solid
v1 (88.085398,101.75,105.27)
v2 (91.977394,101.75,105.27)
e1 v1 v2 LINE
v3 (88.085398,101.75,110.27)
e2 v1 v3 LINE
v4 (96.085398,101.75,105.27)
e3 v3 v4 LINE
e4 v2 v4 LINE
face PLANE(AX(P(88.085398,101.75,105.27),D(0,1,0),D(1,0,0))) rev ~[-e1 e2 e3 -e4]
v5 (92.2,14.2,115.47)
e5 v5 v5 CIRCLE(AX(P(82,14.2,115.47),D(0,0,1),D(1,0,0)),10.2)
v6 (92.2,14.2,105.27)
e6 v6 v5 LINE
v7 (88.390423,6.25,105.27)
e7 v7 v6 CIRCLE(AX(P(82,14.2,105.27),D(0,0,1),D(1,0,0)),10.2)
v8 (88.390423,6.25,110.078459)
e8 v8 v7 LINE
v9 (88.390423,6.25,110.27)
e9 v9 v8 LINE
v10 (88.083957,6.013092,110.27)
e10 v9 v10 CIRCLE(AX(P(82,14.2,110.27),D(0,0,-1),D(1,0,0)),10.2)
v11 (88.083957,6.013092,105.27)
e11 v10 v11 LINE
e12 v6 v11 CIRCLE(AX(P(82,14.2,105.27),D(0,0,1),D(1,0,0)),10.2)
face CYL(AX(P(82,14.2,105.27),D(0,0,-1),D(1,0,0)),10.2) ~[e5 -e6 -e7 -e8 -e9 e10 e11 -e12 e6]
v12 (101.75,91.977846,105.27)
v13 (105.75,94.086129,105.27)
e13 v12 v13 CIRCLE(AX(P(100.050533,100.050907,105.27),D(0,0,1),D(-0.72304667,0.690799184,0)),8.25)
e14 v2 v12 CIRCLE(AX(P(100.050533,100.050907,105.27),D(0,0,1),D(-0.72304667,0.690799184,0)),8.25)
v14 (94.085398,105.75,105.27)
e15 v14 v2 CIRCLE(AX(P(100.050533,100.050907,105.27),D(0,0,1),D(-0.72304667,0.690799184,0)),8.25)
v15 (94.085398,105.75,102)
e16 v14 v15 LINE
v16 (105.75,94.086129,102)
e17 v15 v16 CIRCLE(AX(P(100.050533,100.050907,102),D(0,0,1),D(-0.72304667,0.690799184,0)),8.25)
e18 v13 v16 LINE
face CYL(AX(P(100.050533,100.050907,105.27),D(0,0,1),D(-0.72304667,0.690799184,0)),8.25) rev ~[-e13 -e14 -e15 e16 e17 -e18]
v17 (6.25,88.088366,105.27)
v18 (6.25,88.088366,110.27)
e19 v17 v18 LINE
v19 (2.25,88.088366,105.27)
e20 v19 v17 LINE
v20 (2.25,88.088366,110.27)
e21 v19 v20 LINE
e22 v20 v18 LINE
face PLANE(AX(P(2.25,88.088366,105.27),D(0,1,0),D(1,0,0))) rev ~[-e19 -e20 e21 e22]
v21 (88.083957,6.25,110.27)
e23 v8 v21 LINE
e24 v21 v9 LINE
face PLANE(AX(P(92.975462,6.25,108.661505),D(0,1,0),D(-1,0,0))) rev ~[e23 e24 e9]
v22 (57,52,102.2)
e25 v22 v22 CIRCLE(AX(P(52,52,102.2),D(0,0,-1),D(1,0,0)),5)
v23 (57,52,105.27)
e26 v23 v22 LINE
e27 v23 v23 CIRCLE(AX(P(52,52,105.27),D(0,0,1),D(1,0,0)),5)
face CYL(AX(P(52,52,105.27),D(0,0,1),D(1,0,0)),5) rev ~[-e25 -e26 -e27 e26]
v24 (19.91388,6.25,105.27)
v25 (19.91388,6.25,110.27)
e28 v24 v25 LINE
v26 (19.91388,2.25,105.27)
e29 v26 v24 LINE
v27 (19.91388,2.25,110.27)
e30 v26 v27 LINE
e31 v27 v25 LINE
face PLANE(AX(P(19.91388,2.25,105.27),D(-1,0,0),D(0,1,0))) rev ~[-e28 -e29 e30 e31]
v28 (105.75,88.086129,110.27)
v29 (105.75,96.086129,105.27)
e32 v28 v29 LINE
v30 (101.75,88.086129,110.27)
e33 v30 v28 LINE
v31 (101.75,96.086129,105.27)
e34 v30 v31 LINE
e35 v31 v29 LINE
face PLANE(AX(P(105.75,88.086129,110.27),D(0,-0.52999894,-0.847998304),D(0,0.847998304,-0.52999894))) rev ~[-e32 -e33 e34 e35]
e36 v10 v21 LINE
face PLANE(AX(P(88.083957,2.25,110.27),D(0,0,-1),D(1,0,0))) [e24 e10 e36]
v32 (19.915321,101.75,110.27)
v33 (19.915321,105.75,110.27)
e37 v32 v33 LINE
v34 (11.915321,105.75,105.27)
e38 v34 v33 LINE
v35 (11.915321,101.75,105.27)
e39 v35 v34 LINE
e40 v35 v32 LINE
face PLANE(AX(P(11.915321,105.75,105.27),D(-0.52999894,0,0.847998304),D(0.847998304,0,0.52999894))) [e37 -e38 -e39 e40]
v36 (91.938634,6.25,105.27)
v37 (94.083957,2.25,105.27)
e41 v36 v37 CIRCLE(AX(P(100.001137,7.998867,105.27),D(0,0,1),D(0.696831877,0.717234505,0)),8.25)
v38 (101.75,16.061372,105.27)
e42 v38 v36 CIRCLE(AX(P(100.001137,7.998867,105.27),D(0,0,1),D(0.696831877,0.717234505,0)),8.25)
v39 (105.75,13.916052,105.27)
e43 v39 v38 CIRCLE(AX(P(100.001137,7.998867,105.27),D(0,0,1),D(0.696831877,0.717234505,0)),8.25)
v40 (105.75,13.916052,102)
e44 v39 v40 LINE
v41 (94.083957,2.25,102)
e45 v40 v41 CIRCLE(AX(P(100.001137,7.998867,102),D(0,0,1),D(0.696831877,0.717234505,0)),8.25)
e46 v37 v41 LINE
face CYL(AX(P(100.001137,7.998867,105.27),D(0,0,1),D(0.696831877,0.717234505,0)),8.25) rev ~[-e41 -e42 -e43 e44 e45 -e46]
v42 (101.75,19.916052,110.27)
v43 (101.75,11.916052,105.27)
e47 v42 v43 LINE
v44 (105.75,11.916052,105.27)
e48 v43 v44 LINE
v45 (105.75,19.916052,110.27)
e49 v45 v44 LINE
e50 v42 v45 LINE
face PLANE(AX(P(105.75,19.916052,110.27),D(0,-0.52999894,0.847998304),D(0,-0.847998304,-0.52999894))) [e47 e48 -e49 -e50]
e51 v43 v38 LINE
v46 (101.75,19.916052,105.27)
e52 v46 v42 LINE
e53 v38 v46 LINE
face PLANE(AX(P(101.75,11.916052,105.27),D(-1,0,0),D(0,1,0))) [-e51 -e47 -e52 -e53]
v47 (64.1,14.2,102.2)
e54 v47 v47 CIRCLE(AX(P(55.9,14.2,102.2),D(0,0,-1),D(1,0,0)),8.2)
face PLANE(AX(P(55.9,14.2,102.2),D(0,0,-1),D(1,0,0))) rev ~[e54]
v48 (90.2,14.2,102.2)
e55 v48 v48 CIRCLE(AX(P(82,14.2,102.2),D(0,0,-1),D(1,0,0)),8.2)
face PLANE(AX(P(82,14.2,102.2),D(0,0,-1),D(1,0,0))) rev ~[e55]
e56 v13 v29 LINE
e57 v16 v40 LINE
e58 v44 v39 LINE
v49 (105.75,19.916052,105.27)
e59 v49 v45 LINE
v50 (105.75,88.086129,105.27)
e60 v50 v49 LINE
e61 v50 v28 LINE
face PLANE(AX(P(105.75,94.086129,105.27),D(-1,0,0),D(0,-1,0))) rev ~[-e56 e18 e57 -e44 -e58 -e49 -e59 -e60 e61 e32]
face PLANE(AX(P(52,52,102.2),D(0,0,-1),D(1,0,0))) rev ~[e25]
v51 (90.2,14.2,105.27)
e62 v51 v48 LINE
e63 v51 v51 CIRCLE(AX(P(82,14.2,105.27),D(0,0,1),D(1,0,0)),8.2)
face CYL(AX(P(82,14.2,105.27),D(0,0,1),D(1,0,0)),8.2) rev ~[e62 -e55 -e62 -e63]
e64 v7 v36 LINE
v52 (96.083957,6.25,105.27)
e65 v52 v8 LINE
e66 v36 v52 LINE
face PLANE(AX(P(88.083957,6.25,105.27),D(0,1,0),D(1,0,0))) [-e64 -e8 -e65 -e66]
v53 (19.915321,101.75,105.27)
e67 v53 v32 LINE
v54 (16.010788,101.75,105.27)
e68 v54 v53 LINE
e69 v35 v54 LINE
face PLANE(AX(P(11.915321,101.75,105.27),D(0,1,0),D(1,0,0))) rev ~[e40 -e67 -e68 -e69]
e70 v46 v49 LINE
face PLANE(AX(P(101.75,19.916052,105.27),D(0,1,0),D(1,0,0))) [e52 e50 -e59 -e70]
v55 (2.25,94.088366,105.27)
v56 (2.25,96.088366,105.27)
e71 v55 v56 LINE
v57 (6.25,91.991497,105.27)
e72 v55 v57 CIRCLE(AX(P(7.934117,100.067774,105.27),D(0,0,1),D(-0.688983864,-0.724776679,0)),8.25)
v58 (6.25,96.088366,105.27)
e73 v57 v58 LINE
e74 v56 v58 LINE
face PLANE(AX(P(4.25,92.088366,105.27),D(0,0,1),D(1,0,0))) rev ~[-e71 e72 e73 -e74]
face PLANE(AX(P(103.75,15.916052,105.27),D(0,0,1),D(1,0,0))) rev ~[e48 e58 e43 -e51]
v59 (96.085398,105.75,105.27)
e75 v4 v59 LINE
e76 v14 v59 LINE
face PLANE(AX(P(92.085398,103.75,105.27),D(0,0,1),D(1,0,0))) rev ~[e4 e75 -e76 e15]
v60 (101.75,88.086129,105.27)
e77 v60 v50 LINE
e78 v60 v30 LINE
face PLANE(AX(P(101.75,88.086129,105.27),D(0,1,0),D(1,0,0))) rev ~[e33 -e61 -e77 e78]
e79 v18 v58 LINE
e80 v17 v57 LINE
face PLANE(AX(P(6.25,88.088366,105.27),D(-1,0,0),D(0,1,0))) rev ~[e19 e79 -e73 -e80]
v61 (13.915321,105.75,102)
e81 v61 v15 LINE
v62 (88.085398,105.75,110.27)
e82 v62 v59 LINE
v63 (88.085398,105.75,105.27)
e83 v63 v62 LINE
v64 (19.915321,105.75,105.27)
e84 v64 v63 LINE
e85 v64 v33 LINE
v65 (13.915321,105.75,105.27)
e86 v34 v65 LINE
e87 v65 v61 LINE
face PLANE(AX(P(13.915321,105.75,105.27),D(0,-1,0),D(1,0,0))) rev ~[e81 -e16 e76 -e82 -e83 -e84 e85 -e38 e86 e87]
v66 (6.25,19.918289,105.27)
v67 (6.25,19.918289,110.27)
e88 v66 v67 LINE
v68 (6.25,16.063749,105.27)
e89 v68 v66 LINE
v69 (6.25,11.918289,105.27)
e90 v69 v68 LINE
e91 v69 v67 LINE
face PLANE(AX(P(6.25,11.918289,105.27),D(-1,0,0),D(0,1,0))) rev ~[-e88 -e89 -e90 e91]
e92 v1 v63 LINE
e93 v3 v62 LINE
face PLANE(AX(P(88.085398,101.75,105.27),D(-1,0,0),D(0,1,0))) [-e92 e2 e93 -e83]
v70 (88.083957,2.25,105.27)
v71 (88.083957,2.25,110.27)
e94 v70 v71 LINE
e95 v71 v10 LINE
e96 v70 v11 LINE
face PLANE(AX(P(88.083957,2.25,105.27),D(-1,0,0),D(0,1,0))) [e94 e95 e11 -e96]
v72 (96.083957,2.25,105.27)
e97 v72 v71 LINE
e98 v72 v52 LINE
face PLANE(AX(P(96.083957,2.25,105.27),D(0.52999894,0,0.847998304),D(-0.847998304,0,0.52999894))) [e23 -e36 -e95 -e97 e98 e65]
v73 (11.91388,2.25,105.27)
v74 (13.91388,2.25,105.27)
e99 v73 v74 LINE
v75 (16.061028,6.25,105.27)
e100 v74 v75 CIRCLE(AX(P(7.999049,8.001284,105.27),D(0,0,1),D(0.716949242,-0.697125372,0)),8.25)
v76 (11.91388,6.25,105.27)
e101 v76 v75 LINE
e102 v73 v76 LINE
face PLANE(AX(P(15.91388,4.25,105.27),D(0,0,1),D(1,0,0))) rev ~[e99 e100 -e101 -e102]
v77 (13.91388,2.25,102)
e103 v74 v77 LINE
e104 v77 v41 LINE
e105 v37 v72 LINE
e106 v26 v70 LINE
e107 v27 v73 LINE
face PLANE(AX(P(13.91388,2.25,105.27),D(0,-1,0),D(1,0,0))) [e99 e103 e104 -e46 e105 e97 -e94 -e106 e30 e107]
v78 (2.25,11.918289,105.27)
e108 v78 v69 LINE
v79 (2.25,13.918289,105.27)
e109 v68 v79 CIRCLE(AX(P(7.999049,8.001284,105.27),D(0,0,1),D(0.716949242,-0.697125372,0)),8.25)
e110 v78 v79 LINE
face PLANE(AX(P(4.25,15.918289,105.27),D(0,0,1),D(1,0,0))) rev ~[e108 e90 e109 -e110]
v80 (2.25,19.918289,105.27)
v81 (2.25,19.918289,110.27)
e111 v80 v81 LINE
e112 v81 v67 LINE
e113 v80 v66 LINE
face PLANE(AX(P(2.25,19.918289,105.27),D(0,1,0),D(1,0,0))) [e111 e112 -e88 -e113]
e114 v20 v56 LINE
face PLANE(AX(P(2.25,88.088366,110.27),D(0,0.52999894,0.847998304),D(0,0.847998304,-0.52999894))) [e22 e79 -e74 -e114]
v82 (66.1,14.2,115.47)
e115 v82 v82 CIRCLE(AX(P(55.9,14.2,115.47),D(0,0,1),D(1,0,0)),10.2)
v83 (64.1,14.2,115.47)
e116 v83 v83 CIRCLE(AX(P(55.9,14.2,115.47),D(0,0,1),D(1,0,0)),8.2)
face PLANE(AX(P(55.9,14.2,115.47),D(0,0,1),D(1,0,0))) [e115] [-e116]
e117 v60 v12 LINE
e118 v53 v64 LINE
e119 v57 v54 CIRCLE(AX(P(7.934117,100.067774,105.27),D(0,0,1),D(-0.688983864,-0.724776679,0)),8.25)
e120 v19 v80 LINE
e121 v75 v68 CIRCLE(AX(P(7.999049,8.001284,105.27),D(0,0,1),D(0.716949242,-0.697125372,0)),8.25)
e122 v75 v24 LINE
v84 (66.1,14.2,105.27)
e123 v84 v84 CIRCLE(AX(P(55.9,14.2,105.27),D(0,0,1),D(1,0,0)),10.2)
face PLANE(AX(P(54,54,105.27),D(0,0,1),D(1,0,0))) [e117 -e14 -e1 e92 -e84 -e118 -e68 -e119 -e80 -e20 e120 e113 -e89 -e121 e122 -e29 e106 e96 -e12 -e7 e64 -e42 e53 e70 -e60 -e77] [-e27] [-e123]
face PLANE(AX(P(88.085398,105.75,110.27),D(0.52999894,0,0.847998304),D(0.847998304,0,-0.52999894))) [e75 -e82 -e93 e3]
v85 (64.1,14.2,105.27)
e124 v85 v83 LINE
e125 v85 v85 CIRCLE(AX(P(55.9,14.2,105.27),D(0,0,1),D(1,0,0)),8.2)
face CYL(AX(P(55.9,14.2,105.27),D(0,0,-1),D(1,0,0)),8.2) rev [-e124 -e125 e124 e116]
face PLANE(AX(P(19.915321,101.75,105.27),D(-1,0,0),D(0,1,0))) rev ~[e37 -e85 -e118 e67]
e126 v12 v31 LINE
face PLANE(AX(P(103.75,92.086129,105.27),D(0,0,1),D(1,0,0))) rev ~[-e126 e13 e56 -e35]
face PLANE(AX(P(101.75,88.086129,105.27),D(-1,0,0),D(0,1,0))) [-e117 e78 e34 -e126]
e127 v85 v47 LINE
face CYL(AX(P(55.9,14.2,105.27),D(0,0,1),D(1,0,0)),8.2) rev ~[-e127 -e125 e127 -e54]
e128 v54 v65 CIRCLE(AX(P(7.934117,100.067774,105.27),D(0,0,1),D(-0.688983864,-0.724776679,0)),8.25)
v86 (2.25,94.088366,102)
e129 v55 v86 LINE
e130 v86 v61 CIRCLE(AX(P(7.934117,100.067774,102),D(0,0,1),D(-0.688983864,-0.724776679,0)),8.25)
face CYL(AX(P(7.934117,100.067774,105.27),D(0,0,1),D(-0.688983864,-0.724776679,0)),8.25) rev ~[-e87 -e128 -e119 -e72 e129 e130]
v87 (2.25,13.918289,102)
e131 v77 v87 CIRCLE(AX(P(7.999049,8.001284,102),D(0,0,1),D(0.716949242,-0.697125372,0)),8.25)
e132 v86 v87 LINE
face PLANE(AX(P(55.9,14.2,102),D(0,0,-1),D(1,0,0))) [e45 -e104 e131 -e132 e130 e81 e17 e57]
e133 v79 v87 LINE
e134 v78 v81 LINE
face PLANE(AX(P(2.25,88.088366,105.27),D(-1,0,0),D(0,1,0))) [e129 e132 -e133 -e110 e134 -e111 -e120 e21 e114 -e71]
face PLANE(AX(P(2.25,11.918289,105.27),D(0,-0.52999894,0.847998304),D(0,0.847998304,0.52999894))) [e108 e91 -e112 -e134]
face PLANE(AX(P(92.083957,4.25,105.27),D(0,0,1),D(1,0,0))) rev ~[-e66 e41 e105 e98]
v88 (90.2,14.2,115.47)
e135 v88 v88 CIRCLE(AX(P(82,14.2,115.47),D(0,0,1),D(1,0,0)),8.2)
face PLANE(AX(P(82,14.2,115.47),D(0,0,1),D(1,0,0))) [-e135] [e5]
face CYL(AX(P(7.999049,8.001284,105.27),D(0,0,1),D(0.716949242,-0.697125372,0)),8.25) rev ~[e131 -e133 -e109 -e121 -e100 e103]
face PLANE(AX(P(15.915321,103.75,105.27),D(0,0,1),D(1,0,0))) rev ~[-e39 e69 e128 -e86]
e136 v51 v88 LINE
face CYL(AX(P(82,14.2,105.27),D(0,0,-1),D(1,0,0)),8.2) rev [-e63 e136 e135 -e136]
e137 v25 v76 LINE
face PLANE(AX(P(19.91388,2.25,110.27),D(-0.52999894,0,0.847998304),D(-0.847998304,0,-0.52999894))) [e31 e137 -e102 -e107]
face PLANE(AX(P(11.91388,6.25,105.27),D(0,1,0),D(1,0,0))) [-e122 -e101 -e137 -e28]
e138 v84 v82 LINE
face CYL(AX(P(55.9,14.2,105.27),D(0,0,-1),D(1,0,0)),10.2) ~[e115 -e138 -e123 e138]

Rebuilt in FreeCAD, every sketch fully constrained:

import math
import FreeCAD as App
import Part
import Sketcher
from FreeCAD import Vector
Q = App.Units.Quantity


def edges_at(feature, points):
    """Names of the edges that pass closest to the given points."""
    edges = feature.Shape.Edges
    near = lambda p: min(range(len(edges)), key=lambda i: edges[i].distToShape(Part.Vertex(*p))[0])
    return sorted({f"Edge{near(p) + 1}" for p in points})

doc = App.newDocument("Part")
body = doc.addObject("PartDesign::Body", "Body")

# Sketch on XY plane
sketch1 = body.newObject("Sketcher::SketchObject", "Sketch")
sketch1.AttachmentSupport = (doc.getObject("XY_Plane"), [""])
sketch1.MapMode = "FlatFace"
sketch1.addGeometry(Part.LineSegment(Vector(0, 108, 0), Vector(0, 0, 0)), False)
sketch1.addGeometry(Part.LineSegment(Vector(0, 0, 0), Vector(108, 0, 0)), False)
sketch1.addGeometry(Part.LineSegment(Vector(108, 0, 0), Vector(108, 108, 0)), False)
sketch1.addGeometry(Part.LineSegment(Vector(108, 108, 0), Vector(0, 108, 0)), False)
sketch1.addConstraint(Sketcher.Constraint("Coincident", 0, 2, 1, 1))
sketch1.addConstraint(Sketcher.Constraint("Coincident", 1, 2, 2, 1))
sketch1.addConstraint(Sketcher.Constraint("Coincident", 2, 2, 3, 1))
sketch1.addConstraint(Sketcher.Constraint("Coincident", 3, 2, 0, 1))
sketch1.addConstraint(Sketcher.Constraint("Vertical", 0))
sketch1.addConstraint(Sketcher.Constraint("Horizontal", 1))
sketch1.addConstraint(Sketcher.Constraint("Vertical", 2))
sketch1.addConstraint(Sketcher.Constraint("Horizontal", 3))
sketch1.addConstraint(Sketcher.Constraint("Coincident", 0, 2, -1, 1))
sketch1.addConstraint(Sketcher.Constraint("Equal", 3, 0))
sketch1.addConstraint(Sketcher.Constraint("DistanceX", 1, 1, 1, 2, Q("108 mm")))
pad1 = body.newObject("PartDesign::Pad", "Pad")
pad1.Profile = sketch1
pad1.Length = 3.27
doc.recompute()

fillet = body.newObject("PartDesign::Fillet", "Fillet")
fillet.Base = (pad1, edges_at(pad1, [
    (0, 0, 1.635),
    (0, 108, 1.635),
    (108, 108, 1.635),
    (108, 0, 1.635),
]))
fillet.Radius = 8

# Sketch on XY plane
sketch2 = body.newObject("Sketcher::SketchObject", "Sketch001")
sketch2.AttachmentSupport = (doc.getObject("XY_Plane"), [""])
sketch2.MapMode = "FlatFace"
sketch2.AttachmentOffset = App.Placement(Vector(0, 0, 3.27), App.Rotation())
sketch2.addGeometry(Part.Circle(Vector(56, 14, 0), Vector(0, 0, 1), 8), False)
sketch2.addGeometry(Part.Circle(Vector(82, 14, 0), Vector(0, 0, 1), 8), False)
sketch2.addConstraint(Sketcher.Constraint("Equal", 0, 1))
sketch2.addConstraint(Sketcher.Constraint("Horizontal", 0, 3, 1, 3))
sketch2.addConstraint(Sketcher.Constraint("Diameter", 0, Q("16.4 mm")))
sketch2.addConstraint(Sketcher.Constraint("DistanceX", -1, 1, 1, 3, Q("82 mm")))
sketch2.addConstraint(Sketcher.Constraint("DistanceX", -1, 1, 0, 3, Q("55.9 mm")))
sketch2.addConstraint(Sketcher.Constraint("DistanceY", -1, 1, 0, 3, Q("14.2 mm")))
pocket1 = body.newObject("PartDesign::Pocket", "Pocket")
pocket1.Profile = sketch2
pocket1.Type = "ThroughAll"

# Sketch on XY plane
sketch3 = body.newObject("Sketcher::SketchObject", "Sketch002")
sketch3.AttachmentSupport = (doc.getObject("XY_Plane"), [""])
sketch3.MapMode = "FlatFace"
sketch3.AttachmentOffset = App.Placement(Vector(0, 0, 3.27), App.Rotation())
sketch3.addGeometry(Part.Circle(Vector(56, 14, 0), Vector(0, 0, 1), 10), False)
sketch3.addGeometry(Part.Circle(Vector(56, 14, 0), Vector(0, 0, 1), 8), False)
sketch3.addGeometry(Part.Circle(Vector(82, 14, 0), Vector(0, 0, 1), 10), False)
sketch3.addGeometry(Part.Circle(Vector(82, 14, 0), Vector(0, 0, 1), 8), False)
sketch3.addConstraint(Sketcher.Constraint("Coincident", 1, 3, 0, 3))
sketch3.addConstraint(Sketcher.Constraint("Coincident", 3, 3, 2, 3))
sketch3.addConstraint(Sketcher.Constraint("Equal", 0, 2))
sketch3.addConstraint(Sketcher.Constraint("Equal", 1, 3))
sketch3.addConstraint(Sketcher.Constraint("Horizontal", 1, 3, 2, 3))
sketch3.addConstraint(Sketcher.Constraint("Diameter", 0, Q("20.4 mm")))
sketch3.addConstraint(Sketcher.Constraint("Diameter", 1, Q("16.4 mm")))
sketch3.addConstraint(Sketcher.Constraint("DistanceX", -1, 1, 2, 3, Q("82 mm")))
sketch3.addConstraint(Sketcher.Constraint("DistanceX", -1, 1, 0, 3, Q("55.9 mm")))
sketch3.addConstraint(Sketcher.Constraint("DistanceY", -1, 1, 0, 3, Q("14.2 mm")))
pad2 = body.newObject("PartDesign::Pad", "Pad001")
pad2.Profile = sketch3
pad2.Length = 10.2

# Sketch on XY plane
sketch4 = body.newObject("Sketcher::SketchObject", "Sketch003")
sketch4.AttachmentSupport = (doc.getObject("XY_Plane"), [""])
sketch4.MapMode = "FlatFace"
sketch4.AttachmentOffset = App.Placement(Vector(0, 0, 3.27), App.Rotation())
sketch4.addGeometry(Part.LineSegment(Vector(0, 108, 0), Vector(0, 0, 0)), False)
sketch4.addGeometry(Part.LineSegment(Vector(0, 0, 0), Vector(108, 0, 0)), False)
sketch4.addGeometry(Part.LineSegment(Vector(108, 0, 0), Vector(108, 108, 0)), False)
sketch4.addGeometry(Part.LineSegment(Vector(108, 108, 0), Vector(0, 108, 0)), False)
sketch4.addGeometry(Part.LineSegment(Vector(2, 14, 0), Vector(2, 94, 0)), False)
sketch4.addGeometry(Part.ArcOfCircle(Part.Circle(Vector(8, 100, 0), Vector(0, 0, 1), 8), math.radians(-134), math.radians(44)), False)
sketch4.addGeometry(Part.LineSegment(Vector(14, 106, 0), Vector(94, 106, 0)), False)
sketch4.addGeometry(Part.ArcOfCircle(Part.Circle(Vector(100, 100, 0), Vector(0, 0, 1), 8), math.radians(136), math.radians(314)), False)
sketch4.addGeometry(Part.LineSegment(Vector(106, 94, 0), Vector(106, 14, 0)), False)
sketch4.addGeometry(Part.ArcOfCircle(Part.Circle(Vector(100, 8, 0), Vector(0, 0, 1), 8), math.radians(46), math.radians(224)), False)
sketch4.addGeometry(Part.LineSegment(Vector(94, 2, 0), Vector(14, 2, 0)), False)
sketch4.addGeometry(Part.ArcOfCircle(Part.Circle(Vector(8, 8, 0), Vector(0, 0, 1), 8), math.radians(-44), math.radians(134)), False)
sketch4.addConstraint(Sketcher.Constraint("Coincident", 0, 2, 1, 1))
sketch4.addConstraint(Sketcher.Constraint("Coincident", 1, 2, 2, 1))
sketch4.addConstraint(Sketcher.Constraint("Coincident", 2, 2, 3, 1))
sketch4.addConstraint(Sketcher.Constraint("Coincident", 3, 2, 0, 1))
sketch4.addConstraint(Sketcher.Constraint("Coincident", 4, 2, 5, 1))
sketch4.addConstraint(Sketcher.Constraint("Coincident", 5, 2, 6, 1))
sketch4.addConstraint(Sketcher.Constraint("Coincident", 6, 2, 7, 1))
sketch4.addConstraint(Sketcher.Constraint("Coincident", 7, 2, 8, 1))
sketch4.addConstraint(Sketcher.Constraint("Coincident", 8, 2, 9, 1))
sketch4.addConstraint(Sketcher.Constraint("Coincident", 9, 2, 10, 1))
sketch4.addConstraint(Sketcher.Constraint("Coincident", 10, 2, 11, 1))
sketch4.addConstraint(Sketcher.Constraint("Coincident", 11, 2, 4, 1))
sketch4.addConstraint(Sketcher.Constraint("Vertical", 0))
sketch4.addConstraint(Sketcher.Constraint("Horizontal", 1))
sketch4.addConstraint(Sketcher.Constraint("Vertical", 2))
sketch4.addConstraint(Sketcher.Constraint("Horizontal", 3))
sketch4.addConstraint(Sketcher.Constraint("Vertical", 4))
sketch4.addConstraint(Sketcher.Constraint("Horizontal", 6))
sketch4.addConstraint(Sketcher.Constraint("Vertical", 8))
sketch4.addConstraint(Sketcher.Constraint("Horizontal", 10))
sketch4.addConstraint(Sketcher.Constraint("Coincident", 0, 2, -1, 1))
sketch4.addConstraint(Sketcher.Constraint("Equal", 5, 7))
sketch4.addConstraint(Sketcher.Constraint("Equal", 7, 9))
sketch4.addConstraint(Sketcher.Constraint("Equal", 9, 11))
sketch4.addConstraint(Sketcher.Constraint("Equal", 6, 10))
sketch4.addConstraint(Sketcher.Constraint("Equal", 3, 0))
sketch4.addConstraint(Sketcher.Constraint("Equal", 10, 4))
sketch4.addConstraint(Sketcher.Constraint("Equal", 4, 8))
sketch4.addConstraint(Sketcher.Constraint("DistanceX", 1, 1, 1, 2, Q("108 mm")))
sketch4.addConstraint(Sketcher.Constraint("Radius", 5, Q("8.25 mm")))
sketch4.addConstraint(Sketcher.Constraint("DistanceX", -1, 1, 4, 2, Q("2.25 mm")))
sketch4.addConstraint(Sketcher.Constraint("DistanceY", -1, 1, 5, 2, Q("105.75 mm")))
sketch4.addConstraint(Sketcher.Constraint("DistanceX", -1, 1, 7, 2, Q("105.75 mm")))
sketch4.addConstraint(Sketcher.Constraint("DistanceY", -1, 1, 9, 2, Q("2.25 mm")))
sketch4.addConstraint(Sketcher.Constraint("DistanceX", 6, 2, 7, 2, Q("11.664602 mm")))
sketch4.addConstraint(Sketcher.Constraint("DistanceX", 6, 1, 6, 2, Q("80.170077 mm")))
sketch4.addConstraint(Sketcher.Constraint("DistanceX", -1, 1, 11, 3, Q("7.999049 mm")))
sketch4.addConstraint(Sketcher.Constraint("DistanceY", -1, 1, 7, 2, Q("94.086129 mm")))
sketch4.addConstraint(Sketcher.Constraint("DistanceX", -1, 1, 10, 2, Q("13.91388 mm")))
pocket2 = body.newObject("PartDesign::Pocket", "Pocket001")
pocket2.Profile = sketch4
pocket2.Type = "ThroughAll"

# Sketch on XY plane
sketch5 = body.newObject("Sketcher::SketchObject", "Sketch004")
sketch5.AttachmentSupport = (doc.getObject("XY_Plane"), [""])
sketch5.MapMode = "FlatFace"
sketch5.AttachmentOffset = App.Placement(Vector(0, 0, 3.27), App.Rotation())
sketch5.addGeometry(Part.Circle(Vector(52, 52, 0), Vector(0, 0, 1), 5), False)
sketch5.addConstraint(Sketcher.Constraint("Diameter", 0, Q("10 mm")))
sketch5.addConstraint(Sketcher.Constraint("DistanceX", -1, 1, 0, 3, Q("52 mm")))
sketch5.addConstraint(Sketcher.Constraint("DistanceY", -1, 1, 0, 3, Q("52 mm")))
pocket3 = body.newObject("PartDesign::Pocket", "Pocket002")
pocket3.Profile = sketch5
pocket3.Type = "ThroughAll"

# Sketch on XY plane
sketch6 = body.newObject("Sketcher::SketchObject", "Sketch005")
sketch6.AttachmentSupport = (doc.getObject("XY_Plane"), [""])
sketch6.MapMode = "FlatFace"
sketch6.AttachmentOffset = App.Placement(Vector(0, 0, 3.27), App.Rotation())
sketch6.addGeometry(Part.LineSegment(Vector(2.2, 96.1, 0), Vector(2.2, 88.1, 0)), False)
sketch6.addGeometry(Part.LineSegment(Vector(2.2, 88.1, 0), Vector(6.2, 88.1, 0)), False)
sketch6.addGeometry(Part.LineSegment(Vector(6.2, 88.1, 0), Vector(6.2, 96.1, 0)), False)
sketch6.addGeometry(Part.LineSegment(Vector(6.2, 96.1, 0), Vector(2.2, 96.1, 0)), False)
sketch6.addGeometry(Part.LineSegment(Vector(11.9, 105.8, 0), Vector(11.9, 101.8, 0)), False)
sketch6.addGeometry(Part.LineSegment(Vector(11.9, 101.8, 0), Vector(19.9, 101.8, 0)), False)
sketch6.addGeometry(Part.LineSegment(Vector(19.9, 101.8, 0), Vector(19.9, 105.8, 0)), False)
sketch6.addGeometry(Part.LineSegment(Vector(19.9, 105.8, 0), Vector(11.9, 105.8, 0)), False)
sketch6.addGeometry(Part.LineSegment(Vector(88.1, 105.8, 0), Vector(88.1, 101.8, 0)), False)
sketch6.addGeometry(Part.LineSegment(Vector(88.1, 101.8, 0), Vector(96.1, 101.8, 0)), False)
sketch6.addGeometry(Part.LineSegment(Vector(96.1, 101.8, 0), Vector(96.1, 105.8, 0)), False)
sketch6.addGeometry(Part.LineSegment(Vector(96.1, 105.8, 0), Vector(88.1, 105.8, 0)), False)
sketch6.addGeometry(Part.LineSegment(Vector(101.8, 96.1, 0), Vector(101.8, 88.1, 0)), False)
sketch6.addGeometry(Part.LineSegment(Vector(101.8, 88.1, 0), Vector(105.8, 88.1, 0)), False)
sketch6.addGeometry(Part.LineSegment(Vector(105.8, 88.1, 0), Vector(105.8, 96.1, 0)), False)
sketch6.addGeometry(Part.LineSegment(Vector(105.8, 96.1, 0), Vector(101.8, 96.1, 0)), False)
sketch6.addGeometry(Part.LineSegment(Vector(101.8, 19.9, 0), Vector(101.8, 11.9, 0)), False)
sketch6.addGeometry(Part.LineSegment(Vector(101.8, 11.9, 0), Vector(105.8, 11.9, 0)), False)
sketch6.addGeometry(Part.LineSegment(Vector(105.8, 11.9, 0), Vector(105.8, 19.9, 0)), False)
sketch6.addGeometry(Part.LineSegment(Vector(105.8, 19.9, 0), Vector(101.8, 19.9, 0)), False)
sketch6.addGeometry(Part.LineSegment(Vector(88.1, 6.2, 0), Vector(88.1, 2.2, 0)), False)
sketch6.addGeometry(Part.LineSegment(Vector(88.1, 2.2, 0), Vector(96.1, 2.2, 0)), False)
sketch6.addGeometry(Part.LineSegment(Vector(96.1, 2.2, 0), Vector(96.1, 6.2, 0)), False)
sketch6.addGeometry(Part.LineSegment(Vector(96.1, 6.2, 0), Vector(88.1, 6.2, 0)), False)
sketch6.addGeometry(Part.LineSegment(Vector(11.9, 6.2, 0), Vector(11.9, 2.2, 0)), False)
sketch6.addGeometry(Part.LineSegment(Vector(11.9, 2.2, 0), Vector(19.9, 2.2, 0)), False)
sketch6.addGeometry(Part.LineSegment(Vector(19.9, 2.2, 0), Vector(19.9, 6.2, 0)), False)
sketch6.addGeometry(Part.LineSegment(Vector(19.9, 6.2, 0), Vector(11.9, 6.2, 0)), False)
sketch6.addGeometry(Part.LineSegment(Vector(2.2, 19.9, 0), Vector(2.2, 11.9, 0)), False)
sketch6.addGeometry(Part.LineSegment(Vector(2.2, 11.9, 0), Vector(6.2, 11.9, 0)), False)
sketch6.addGeometry(Part.LineSegment(Vector(6.2, 11.9, 0), Vector(6.2, 19.9, 0)), False)
sketch6.addGeometry(Part.LineSegment(Vector(6.2, 19.9, 0), Vector(2.2, 19.9, 0)), False)
sketch6.addConstraint(Sketcher.Constraint("Coincident", 0, 2, 1, 1))
sketch6.addConstraint(Sketcher.Constraint("Coincident", 1, 2, 2, 1))
sketch6.addConstraint(Sketcher.Constraint("Coincident", 2, 2, 3, 1))
sketch6.addConstraint(Sketcher.Constraint("Coincident", 3, 2, 0, 1))
sketch6.addConstraint(Sketcher.Constraint("Coincident", 4, 2, 5, 1))
sketch6.addConstraint(Sketcher.Constraint("Coincident", 5, 2, 6, 1))
sketch6.addConstraint(Sketcher.Constraint("Coincident", 6, 2, 7, 1))
sketch6.addConstraint(Sketcher.Constraint("Coincident", 7, 2, 4, 1))
sketch6.addConstraint(Sketcher.Constraint("Coincident", 8, 2, 9, 1))
sketch6.addConstraint(Sketcher.Constraint("Coincident", 9, 2, 10, 1))
sketch6.addConstraint(Sketcher.Constraint("Coincident", 10, 2, 11, 1))
sketch6.addConstraint(Sketcher.Constraint("Coincident", 11, 2, 8, 1))
sketch6.addConstraint(Sketcher.Constraint("Coincident", 12, 2, 13, 1))
sketch6.addConstraint(Sketcher.Constraint("Coincident", 13, 2, 14, 1))
sketch6.addConstraint(Sketcher.Constraint("Coincident", 14, 2, 15, 1))
sketch6.addConstraint(Sketcher.Constraint("Coincident", 15, 2, 12, 1))
sketch6.addConstraint(Sketcher.Constraint("Coincident", 16, 2, 17, 1))
sketch6.addConstraint(Sketcher.Constraint("Coincident", 17, 2, 18, 1))
sketch6.addConstraint(Sketcher.Constraint("Coincident", 18, 2, 19, 1))
sketch6.addConstraint(Sketcher.Constraint("Coincident", 19, 2, 16, 1))
sketch6.addConstraint(Sketcher.Constraint("Coincident", 20, 2, 21, 1))
sketch6.addConstraint(Sketcher.Constraint("Coincident", 21, 2, 22, 1))
sketch6.addConstraint(Sketcher.Constraint("Coincident", 22, 2, 23, 1))
sketch6.addConstraint(Sketcher.Constraint("Coincident", 23, 2, 20, 1))
sketch6.addConstraint(Sketcher.Constraint("Coincident", 24, 2, 25, 1))
sketch6.addConstraint(Sketcher.Constraint("Coincident", 25, 2, 26, 1))
sketch6.addConstraint(Sketcher.Constraint("Coincident", 26, 2, 27, 1))
sketch6.addConstraint(Sketcher.Constraint("Coincident", 27, 2, 24, 1))
sketch6.addConstraint(Sketcher.Constraint("Coincident", 28, 2, 29, 1))
sketch6.addConstraint(Sketcher.Constraint("Coincident", 29, 2, 30, 1))
sketch6.addConstraint(Sketcher.Constraint("Coincident", 30, 2, 31, 1))
sketch6.addConstraint(Sketcher.Constraint("Coincident", 31, 2, 28, 1))
sketch6.addConstraint(Sketcher.Constraint("Vertical", 0))
sketch6.addConstraint(Sketcher.Constraint("Horizontal", 1))
sketch6.addConstraint(Sketcher.Constraint("Vertical", 2))
sketch6.addConstraint(Sketcher.Constraint("Horizontal", 3))
sketch6.addConstraint(Sketcher.Constraint("Vertical", 4))
sketch6.addConstraint(Sketcher.Constraint("Horizontal", 5))
sketch6.addConstraint(Sketcher.Constraint("Vertical", 6))
sketch6.addConstraint(Sketcher.Constraint("Horizontal", 7))
sketch6.addConstraint(Sketcher.Constraint("Vertical", 8))
sketch6.addConstraint(Sketcher.Constraint("Horizontal", 9))
sketch6.addConstraint(Sketcher.Constraint("Vertical", 10))
sketch6.addConstraint(Sketcher.Constraint("Horizontal", 11))
sketch6.addConstraint(Sketcher.Constraint("Vertical", 12))
sketch6.addConstraint(Sketcher.Constraint("Horizontal", 13))
sketch6.addConstraint(Sketcher.Constraint("Vertical", 14))
sketch6.addConstraint(Sketcher.Constraint("Horizontal", 15))
sketch6.addConstraint(Sketcher.Constraint("Vertical", 16))
sketch6.addConstraint(Sketcher.Constraint("Horizontal", 17))
sketch6.addConstraint(Sketcher.Constraint("Vertical", 18))
sketch6.addConstraint(Sketcher.Constraint("Horizontal", 19))
sketch6.addConstraint(Sketcher.Constraint("Vertical", 20))
sketch6.addConstraint(Sketcher.Constraint("Horizontal", 21))
sketch6.addConstraint(Sketcher.Constraint("Vertical", 22))
sketch6.addConstraint(Sketcher.Constraint("Horizontal", 23))
sketch6.addConstraint(Sketcher.Constraint("Vertical", 24))
sketch6.addConstraint(Sketcher.Constraint("Horizontal", 25))
sketch6.addConstraint(Sketcher.Constraint("Vertical", 26))
sketch6.addConstraint(Sketcher.Constraint("Horizontal", 27))
sketch6.addConstraint(Sketcher.Constraint("Vertical", 28))
sketch6.addConstraint(Sketcher.Constraint("Horizontal", 29))
sketch6.addConstraint(Sketcher.Constraint("Vertical", 30))
sketch6.addConstraint(Sketcher.Constraint("Horizontal", 31))
sketch6.addConstraint(Sketcher.Constraint("Horizontal", 5, 2, 8, 2))
sketch6.addConstraint(Sketcher.Constraint("Horizontal", 7, 2, 10, 2))
sketch6.addConstraint(Sketcher.Constraint("Horizontal", 21, 2, 24, 2))
sketch6.addConstraint(Sketcher.Constraint("Horizontal", 23, 2, 26, 2))
sketch6.addConstraint(Sketcher.Constraint("Vertical", 15, 2, 16, 2))
sketch6.addConstraint(Sketcher.Constraint("Vertical", 14, 2, 17, 2))
sketch6.addConstraint(Sketcher.Constraint("Vertical", 3, 2, 28, 2))
sketch6.addConstraint(Sketcher.Constraint("Vertical", 2, 2, 29, 2))
sketch6.addConstraint(Sketcher.Constraint("Equal", 7, 9))
sketch6.addConstraint(Sketcher.Constraint("Equal", 3, 13))
sketch6.addConstraint(Sketcher.Constraint("Equal", 11, 21))
sketch6.addConstraint(Sketcher.Constraint("Equal", 23, 25))
sketch6.addConstraint(Sketcher.Constraint("Equal", 27, 0))
sketch6.addConstraint(Sketcher.Constraint("Equal", 31, 4))
sketch6.addConstraint(Sketcher.Constraint("Equal", 2, 12))
sketch6.addConstraint(Sketcher.Constraint("Equal", 14, 16))
sketch6.addConstraint(Sketcher.Constraint("Equal", 10, 20))
sketch6.addConstraint(Sketcher.Constraint("Equal", 18, 28))
sketch6.addConstraint(Sketcher.Constraint("DistanceX", 1, 1, 1, 2, Q("4 mm")))
sketch6.addConstraint(Sketcher.Constraint("DistanceX", 5, 1, 5, 2, Q("8 mm")))
sketch6.addConstraint(Sketcher.Constraint("DistanceX", -1, 1, 0, 2, Q("2.25 mm")))
sketch6.addConstraint(Sketcher.Constraint("DistanceY", -1, 1, 4, 2, Q("101.75 mm")))
sketch6.addConstraint(Sketcher.Constraint("DistanceX", -1, 1, 12, 2, Q("101.75 mm")))
sketch6.addConstraint(Sketcher.Constraint("DistanceY", -1, 1, 20, 2, Q("2.25 mm")))
sketch6.addConstraint(Sketcher.Constraint("DistanceX", -1, 1, 4, 2, Q("11.915321 mm")))
sketch6.addConstraint(Sketcher.Constraint("DistanceY", -1, 1, 12, 2, Q("88.086129 mm")))
sketch6.addConstraint(Sketcher.Constraint("DistanceX", -1, 1, 24, 2, Q("11.91388 mm")))
sketch6.addConstraint(Sketcher.Constraint("DistanceY", -1, 1, 28, 2, Q("11.918289 mm")))
sketch6.addConstraint(Sketcher.Constraint("DistanceY", -1, 1, 0, 2, Q("88.088366 mm")))
sketch6.addConstraint(Sketcher.Constraint("DistanceX", -1, 1, 8, 2, Q("88.085398 mm")))
sketch6.addConstraint(Sketcher.Constraint("DistanceY", -1, 1, 16, 2, Q("11.916052 mm")))
sketch6.addConstraint(Sketcher.Constraint("DistanceX", -1, 1, 20, 2, Q("88.083957 mm")))
pad3 = body.newObject("PartDesign::Pad", "Pad002")
pad3.Profile = sketch6
pad3.Length = 5

# Sketch on YZ plane
sketch7 = body.newObject("Sketcher::SketchObject", "Sketch006")
sketch7.AttachmentSupport = (doc.getObject("YZ_Plane"), [""])
sketch7.MapMode = "FlatFace"
sketch7.AttachmentOffset = App.Placement(Vector(0, 0, 105.75), App.Rotation())
sketch7.addGeometry(Part.LineSegment(Vector(96, 8, 0), Vector(88, 8, 0)), False)
sketch7.addGeometry(Part.LineSegment(Vector(88, 8, 0), Vector(96, 3, 0)), False)
sketch7.addGeometry(Part.LineSegment(Vector(96, 3, 0), Vector(96, 8, 0)), False)
sketch7.addGeometry(Part.LineSegment(Vector(20, 8, 0), Vector(12, 8, 0)), False)
sketch7.addGeometry(Part.LineSegment(Vector(12, 8, 0), Vector(12, 3, 0)), False)
sketch7.addGeometry(Part.LineSegment(Vector(12, 3, 0), Vector(20, 8, 0)), False)
sketch7.addConstraint(Sketcher.Constraint("Coincident", 0, 2, 1, 1))
sketch7.addConstraint(Sketcher.Constraint("Coincident", 1, 2, 2, 1))
sketch7.addConstraint(Sketcher.Constraint("Coincident", 2, 2, 0, 1))
sketch7.addConstraint(Sketcher.Constraint("Coincident", 3, 2, 4, 1))
sketch7.addConstraint(Sketcher.Constraint("Coincident", 4, 2, 5, 1))
sketch7.addConstraint(Sketcher.Constraint("Coincident", 5, 2, 3, 1))
sketch7.addConstraint(Sketcher.Constraint("Horizontal", 0))
sketch7.addConstraint(Sketcher.Constraint("Vertical", 2))
sketch7.addConstraint(Sketcher.Constraint("Horizontal", 3))
sketch7.addConstraint(Sketcher.Constraint("Vertical", 4))
sketch7.addConstraint(Sketcher.Constraint("Horizontal", 2, 2, 3, 2))
sketch7.addConstraint(Sketcher.Constraint("Horizontal", 1, 2, 4, 2))
sketch7.addConstraint(Sketcher.Constraint("Equal", 0, 3))
sketch7.addConstraint(Sketcher.Constraint("DistanceX", 0, 2, 0, 1, Q("8 mm")))
sketch7.addConstraint(Sketcher.Constraint("DistanceY", 2, 1, 2, 2, Q("5 mm")))
sketch7.addConstraint(Sketcher.Constraint("DistanceY", -1, 1, 0, 2, Q("8.27 mm")))
sketch7.addConstraint(Sketcher.Constraint("DistanceX", -1, 1, 0, 2, Q("88.086129 mm")))
sketch7.addConstraint(Sketcher.Constraint("DistanceX", -1, 1, 3, 2, Q("11.916052 mm")))
pocket4 = body.newObject("PartDesign::Pocket", "Pocket003")
pocket4.Profile = sketch7
pocket4.Length = 4

# Sketch on XZ plane
sketch8 = body.newObject("Sketcher::SketchObject", "Sketch007")
sketch8.AttachmentSupport = (doc.getObject("XZ_Plane"), [""])
sketch8.MapMode = "FlatFace"
sketch8.AttachmentOffset = App.Placement(Vector(0, 0, -105.75), App.Rotation())
sketch8.addGeometry(Part.LineSegment(Vector(88, 8, 0), Vector(96, 8, 0)), False)
sketch8.addGeometry(Part.LineSegment(Vector(96, 8, 0), Vector(96, 3, 0)), False)
sketch8.addGeometry(Part.LineSegment(Vector(96, 3, 0), Vector(88, 8, 0)), False)
sketch8.addGeometry(Part.LineSegment(Vector(12, 8, 0), Vector(20, 8, 0)), False)
sketch8.addGeometry(Part.LineSegment(Vector(20, 8, 0), Vector(12, 3, 0)), False)
sketch8.addGeometry(Part.LineSegment(Vector(12, 3, 0), Vector(12, 8, 0)), False)
sketch8.addConstraint(Sketcher.Constraint("Coincident", 0, 2, 1, 1))
sketch8.addConstraint(Sketcher.Constraint("Coincident", 1, 2, 2, 1))
sketch8.addConstraint(Sketcher.Constraint("Coincident", 2, 2, 0, 1))
sketch8.addConstraint(Sketcher.Constraint("Coincident", 3, 2, 4, 1))
sketch8.addConstraint(Sketcher.Constraint("Coincident", 4, 2, 5, 1))
sketch8.addConstraint(Sketcher.Constraint("Coincident", 5, 2, 3, 1))
sketch8.addConstraint(Sketcher.Constraint("Horizontal", 0))
sketch8.addConstraint(Sketcher.Constraint("Vertical", 1))
sketch8.addConstraint(Sketcher.Constraint("Horizontal", 3))
sketch8.addConstraint(Sketcher.Constraint("Vertical", 5))
sketch8.addConstraint(Sketcher.Constraint("Horizontal", 2, 2, 3, 2))
sketch8.addConstraint(Sketcher.Constraint("Horizontal", 1, 2, 4, 2))
sketch8.addConstraint(Sketcher.Constraint("Equal", 0, 3))
sketch8.addConstraint(Sketcher.Constraint("DistanceX", 0, 1, 0, 2, Q("8 mm")))
sketch8.addConstraint(Sketcher.Constraint("DistanceY", 1, 2, 1, 1, Q("5 mm")))
sketch8.addConstraint(Sketcher.Constraint("DistanceY", -1, 1, 0, 2, Q("8.27 mm")))
sketch8.addConstraint(Sketcher.Constraint("DistanceX", -1, 1, 3, 2, Q("19.915321 mm")))
sketch8.addConstraint(Sketcher.Constraint("DistanceX", -1, 1, 0, 2, Q("96.085398 mm")))
pocket5 = body.newObject("PartDesign::Pocket", "Pocket004")
pocket5.Profile = sketch8
pocket5.Length = 4
pocket5.Reversed = True

# Sketch on YZ plane
sketch9 = body.newObject("Sketcher::SketchObject", "Sketch008")
sketch9.AttachmentSupport = (doc.getObject("YZ_Plane"), [""])
sketch9.MapMode = "FlatFace"
sketch9.AttachmentOffset = App.Placement(Vector(0, 0, 2.25), App.Rotation())
sketch9.addGeometry(Part.LineSegment(Vector(88, 8, 0), Vector(96, 8, 0)), False)
sketch9.addGeometry(Part.LineSegment(Vector(96, 8, 0), Vector(96, 3, 0)), False)
sketch9.addGeometry(Part.LineSegment(Vector(96, 3, 0), Vector(88, 8, 0)), False)
sketch9.addGeometry(Part.LineSegment(Vector(12, 8, 0), Vector(20, 8, 0)), False)
sketch9.addGeometry(Part.LineSegment(Vector(20, 8, 0), Vector(12, 3, 0)), False)
sketch9.addGeometry(Part.LineSegment(Vector(12, 3, 0), Vector(12, 8, 0)), False)
sketch9.addConstraint(Sketcher.Constraint("Coincident", 0, 2, 1, 1))
sketch9.addConstraint(Sketcher.Constraint("Coincident", 1, 2, 2, 1))
sketch9.addConstraint(Sketcher.Constraint("Coincident", 2, 2, 0, 1))
sketch9.addConstraint(Sketcher.Constraint("Coincident", 3, 2, 4, 1))
sketch9.addConstraint(Sketcher.Constraint("Coincident", 4, 2, 5, 1))
sketch9.addConstraint(Sketcher.Constraint("Coincident", 5, 2, 3, 1))
sketch9.addConstraint(Sketcher.Constraint("Horizontal", 0))
sketch9.addConstraint(Sketcher.Constraint("Vertical", 1))
sketch9.addConstraint(Sketcher.Constraint("Horizontal", 3))
sketch9.addConstraint(Sketcher.Constraint("Vertical", 5))
sketch9.addConstraint(Sketcher.Constraint("Horizontal", 2, 2, 3, 2))
sketch9.addConstraint(Sketcher.Constraint("Horizontal", 1, 2, 4, 2))
sketch9.addConstraint(Sketcher.Constraint("Equal", 0, 3))
sketch9.addConstraint(Sketcher.Constraint("DistanceX", 0, 1, 0, 2, Q("8 mm")))
sketch9.addConstraint(Sketcher.Constraint("DistanceY", 1, 2, 1, 1, Q("5 mm")))
sketch9.addConstraint(Sketcher.Constraint("DistanceY", -1, 1, 0, 2, Q("8.27 mm")))
sketch9.addConstraint(Sketcher.Constraint("DistanceX", -1, 1, 3, 2, Q("19.918289 mm")))
sketch9.addConstraint(Sketcher.Constraint("DistanceX", -1, 1, 0, 2, Q("96.088366 mm")))
pocket6 = body.newObject("PartDesign::Pocket", "Pocket005")
pocket6.Profile = sketch9
pocket6.Length = 4
pocket6.Reversed = True

# Sketch on XZ plane
sketch10 = body.newObject("Sketcher::SketchObject", "Sketch009")
sketch10.AttachmentSupport = (doc.getObject("XZ_Plane"), [""])
sketch10.MapMode = "FlatFace"
sketch10.AttachmentOffset = App.Placement(Vector(0, 0, -2.25), App.Rotation())
sketch10.addGeometry(Part.LineSegment(Vector(20, 8, 0), Vector(12, 8, 0)), False)
sketch10.addGeometry(Part.LineSegment(Vector(12, 8, 0), Vector(12, 3, 0)), False)
sketch10.addGeometry(Part.LineSegment(Vector(12, 3, 0), Vector(20, 8, 0)), False)
sketch10.addGeometry(Part.LineSegment(Vector(96, 8, 0), Vector(88, 8, 0)), False)
sketch10.addGeometry(Part.LineSegment(Vector(88, 8, 0), Vector(96, 3, 0)), False)
sketch10.addGeometry(Part.LineSegment(Vector(96, 3, 0), Vector(96, 8, 0)), False)
sketch10.addConstraint(Sketcher.Constraint("Coincident", 0, 2, 1, 1))
sketch10.addConstraint(Sketcher.Constraint("Coincident", 1, 2, 2, 1))
sketch10.addConstraint(Sketcher.Constraint("Coincident", 2, 2, 0, 1))
sketch10.addConstraint(Sketcher.Constraint("Coincident", 3, 2, 4, 1))
sketch10.addConstraint(Sketcher.Constraint("Coincident", 4, 2, 5, 1))
sketch10.addConstraint(Sketcher.Constraint("Coincident", 5, 2, 3, 1))
sketch10.addConstraint(Sketcher.Constraint("Horizontal", 0))
sketch10.addConstraint(Sketcher.Constraint("Vertical", 1))
sketch10.addConstraint(Sketcher.Constraint("Horizontal", 3))
sketch10.addConstraint(Sketcher.Constraint("Vertical", 5))
sketch10.addConstraint(Sketcher.Constraint("Horizontal", 2, 2, 3, 2))
sketch10.addConstraint(Sketcher.Constraint("Horizontal", 1, 2, 4, 2))
sketch10.addConstraint(Sketcher.Constraint("Equal", 0, 3))
sketch10.addConstraint(Sketcher.Constraint("DistanceX", 0, 2, 0, 1, Q("8 mm")))
sketch10.addConstraint(Sketcher.Constraint("DistanceY", 1, 2, 1, 1, Q("5 mm")))
sketch10.addConstraint(Sketcher.Constraint("DistanceY", -1, 1, 0, 2, Q("8.27 mm")))
sketch10.addConstraint(Sketcher.Constraint("DistanceX", -1, 1, 0, 2, Q("11.91388 mm")))
sketch10.addConstraint(Sketcher.Constraint("DistanceX", -1, 1, 3, 2, Q("88.083957 mm")))
pocket7 = body.newObject("PartDesign::Pocket", "Pocket006")
pocket7.Profile = sketch10
pocket7.Length = 4

# Sketch on XY plane
sketch11 = body.newObject("Sketcher::SketchObject", "Sketch010")
sketch11.AttachmentSupport = (doc.getObject("XY_Plane"), [""])
sketch11.MapMode = "FlatFace"
sketch11.addGeometry(Part.Circle(Vector(56, 14, 0), Vector(0, 0, 1), 8), False)
sketch11.addGeometry(Part.Circle(Vector(82, 14, 0), Vector(0, 0, 1), 8), False)
sketch11.addGeometry(Part.Circle(Vector(52, 52, 0), Vector(0, 0, 1), 5), False)
sketch11.addConstraint(Sketcher.Constraint("Equal", 0, 1))
sketch11.addConstraint(Sketcher.Constraint("Horizontal", 0, 3, 1, 3))
sketch11.addConstraint(Sketcher.Constraint("Diameter", 2, Q("10 mm")))
sketch11.addConstraint(Sketcher.Constraint("Diameter", 0, Q("16.4 mm")))
sketch11.addConstraint(Sketcher.Constraint("DistanceX", -1, 1, 1, 3, Q("82 mm")))
sketch11.addConstraint(Sketcher.Constraint("DistanceX", -1, 1, 2, 3, Q("52 mm")))
sketch11.addConstraint(Sketcher.Constraint("DistanceY", -1, 1, 2, 3, Q("52 mm")))
sketch11.addConstraint(Sketcher.Constraint("DistanceX", -1, 1, 0, 3, Q("55.9 mm")))
sketch11.addConstraint(Sketcher.Constraint("DistanceY", -1, 1, 0, 3, Q("14.2 mm")))
pad4 = body.newObject("PartDesign::Pad", "Pad003")
pad4.Profile = sketch11
pad4.Length = 0.2
body2 = doc.addObject("PartDesign::Body", "Body001")
doc.recompute()

body.Placement = App.Placement(Vector(0, 0, 102), App.Rotation(Vector(0, 0, 1), 0))
boolean = body2.newObject("PartDesign::Boolean", "Boolean")
boolean.Type = "Fuse"
boolean.addObjects([body])

doc.recompute()
